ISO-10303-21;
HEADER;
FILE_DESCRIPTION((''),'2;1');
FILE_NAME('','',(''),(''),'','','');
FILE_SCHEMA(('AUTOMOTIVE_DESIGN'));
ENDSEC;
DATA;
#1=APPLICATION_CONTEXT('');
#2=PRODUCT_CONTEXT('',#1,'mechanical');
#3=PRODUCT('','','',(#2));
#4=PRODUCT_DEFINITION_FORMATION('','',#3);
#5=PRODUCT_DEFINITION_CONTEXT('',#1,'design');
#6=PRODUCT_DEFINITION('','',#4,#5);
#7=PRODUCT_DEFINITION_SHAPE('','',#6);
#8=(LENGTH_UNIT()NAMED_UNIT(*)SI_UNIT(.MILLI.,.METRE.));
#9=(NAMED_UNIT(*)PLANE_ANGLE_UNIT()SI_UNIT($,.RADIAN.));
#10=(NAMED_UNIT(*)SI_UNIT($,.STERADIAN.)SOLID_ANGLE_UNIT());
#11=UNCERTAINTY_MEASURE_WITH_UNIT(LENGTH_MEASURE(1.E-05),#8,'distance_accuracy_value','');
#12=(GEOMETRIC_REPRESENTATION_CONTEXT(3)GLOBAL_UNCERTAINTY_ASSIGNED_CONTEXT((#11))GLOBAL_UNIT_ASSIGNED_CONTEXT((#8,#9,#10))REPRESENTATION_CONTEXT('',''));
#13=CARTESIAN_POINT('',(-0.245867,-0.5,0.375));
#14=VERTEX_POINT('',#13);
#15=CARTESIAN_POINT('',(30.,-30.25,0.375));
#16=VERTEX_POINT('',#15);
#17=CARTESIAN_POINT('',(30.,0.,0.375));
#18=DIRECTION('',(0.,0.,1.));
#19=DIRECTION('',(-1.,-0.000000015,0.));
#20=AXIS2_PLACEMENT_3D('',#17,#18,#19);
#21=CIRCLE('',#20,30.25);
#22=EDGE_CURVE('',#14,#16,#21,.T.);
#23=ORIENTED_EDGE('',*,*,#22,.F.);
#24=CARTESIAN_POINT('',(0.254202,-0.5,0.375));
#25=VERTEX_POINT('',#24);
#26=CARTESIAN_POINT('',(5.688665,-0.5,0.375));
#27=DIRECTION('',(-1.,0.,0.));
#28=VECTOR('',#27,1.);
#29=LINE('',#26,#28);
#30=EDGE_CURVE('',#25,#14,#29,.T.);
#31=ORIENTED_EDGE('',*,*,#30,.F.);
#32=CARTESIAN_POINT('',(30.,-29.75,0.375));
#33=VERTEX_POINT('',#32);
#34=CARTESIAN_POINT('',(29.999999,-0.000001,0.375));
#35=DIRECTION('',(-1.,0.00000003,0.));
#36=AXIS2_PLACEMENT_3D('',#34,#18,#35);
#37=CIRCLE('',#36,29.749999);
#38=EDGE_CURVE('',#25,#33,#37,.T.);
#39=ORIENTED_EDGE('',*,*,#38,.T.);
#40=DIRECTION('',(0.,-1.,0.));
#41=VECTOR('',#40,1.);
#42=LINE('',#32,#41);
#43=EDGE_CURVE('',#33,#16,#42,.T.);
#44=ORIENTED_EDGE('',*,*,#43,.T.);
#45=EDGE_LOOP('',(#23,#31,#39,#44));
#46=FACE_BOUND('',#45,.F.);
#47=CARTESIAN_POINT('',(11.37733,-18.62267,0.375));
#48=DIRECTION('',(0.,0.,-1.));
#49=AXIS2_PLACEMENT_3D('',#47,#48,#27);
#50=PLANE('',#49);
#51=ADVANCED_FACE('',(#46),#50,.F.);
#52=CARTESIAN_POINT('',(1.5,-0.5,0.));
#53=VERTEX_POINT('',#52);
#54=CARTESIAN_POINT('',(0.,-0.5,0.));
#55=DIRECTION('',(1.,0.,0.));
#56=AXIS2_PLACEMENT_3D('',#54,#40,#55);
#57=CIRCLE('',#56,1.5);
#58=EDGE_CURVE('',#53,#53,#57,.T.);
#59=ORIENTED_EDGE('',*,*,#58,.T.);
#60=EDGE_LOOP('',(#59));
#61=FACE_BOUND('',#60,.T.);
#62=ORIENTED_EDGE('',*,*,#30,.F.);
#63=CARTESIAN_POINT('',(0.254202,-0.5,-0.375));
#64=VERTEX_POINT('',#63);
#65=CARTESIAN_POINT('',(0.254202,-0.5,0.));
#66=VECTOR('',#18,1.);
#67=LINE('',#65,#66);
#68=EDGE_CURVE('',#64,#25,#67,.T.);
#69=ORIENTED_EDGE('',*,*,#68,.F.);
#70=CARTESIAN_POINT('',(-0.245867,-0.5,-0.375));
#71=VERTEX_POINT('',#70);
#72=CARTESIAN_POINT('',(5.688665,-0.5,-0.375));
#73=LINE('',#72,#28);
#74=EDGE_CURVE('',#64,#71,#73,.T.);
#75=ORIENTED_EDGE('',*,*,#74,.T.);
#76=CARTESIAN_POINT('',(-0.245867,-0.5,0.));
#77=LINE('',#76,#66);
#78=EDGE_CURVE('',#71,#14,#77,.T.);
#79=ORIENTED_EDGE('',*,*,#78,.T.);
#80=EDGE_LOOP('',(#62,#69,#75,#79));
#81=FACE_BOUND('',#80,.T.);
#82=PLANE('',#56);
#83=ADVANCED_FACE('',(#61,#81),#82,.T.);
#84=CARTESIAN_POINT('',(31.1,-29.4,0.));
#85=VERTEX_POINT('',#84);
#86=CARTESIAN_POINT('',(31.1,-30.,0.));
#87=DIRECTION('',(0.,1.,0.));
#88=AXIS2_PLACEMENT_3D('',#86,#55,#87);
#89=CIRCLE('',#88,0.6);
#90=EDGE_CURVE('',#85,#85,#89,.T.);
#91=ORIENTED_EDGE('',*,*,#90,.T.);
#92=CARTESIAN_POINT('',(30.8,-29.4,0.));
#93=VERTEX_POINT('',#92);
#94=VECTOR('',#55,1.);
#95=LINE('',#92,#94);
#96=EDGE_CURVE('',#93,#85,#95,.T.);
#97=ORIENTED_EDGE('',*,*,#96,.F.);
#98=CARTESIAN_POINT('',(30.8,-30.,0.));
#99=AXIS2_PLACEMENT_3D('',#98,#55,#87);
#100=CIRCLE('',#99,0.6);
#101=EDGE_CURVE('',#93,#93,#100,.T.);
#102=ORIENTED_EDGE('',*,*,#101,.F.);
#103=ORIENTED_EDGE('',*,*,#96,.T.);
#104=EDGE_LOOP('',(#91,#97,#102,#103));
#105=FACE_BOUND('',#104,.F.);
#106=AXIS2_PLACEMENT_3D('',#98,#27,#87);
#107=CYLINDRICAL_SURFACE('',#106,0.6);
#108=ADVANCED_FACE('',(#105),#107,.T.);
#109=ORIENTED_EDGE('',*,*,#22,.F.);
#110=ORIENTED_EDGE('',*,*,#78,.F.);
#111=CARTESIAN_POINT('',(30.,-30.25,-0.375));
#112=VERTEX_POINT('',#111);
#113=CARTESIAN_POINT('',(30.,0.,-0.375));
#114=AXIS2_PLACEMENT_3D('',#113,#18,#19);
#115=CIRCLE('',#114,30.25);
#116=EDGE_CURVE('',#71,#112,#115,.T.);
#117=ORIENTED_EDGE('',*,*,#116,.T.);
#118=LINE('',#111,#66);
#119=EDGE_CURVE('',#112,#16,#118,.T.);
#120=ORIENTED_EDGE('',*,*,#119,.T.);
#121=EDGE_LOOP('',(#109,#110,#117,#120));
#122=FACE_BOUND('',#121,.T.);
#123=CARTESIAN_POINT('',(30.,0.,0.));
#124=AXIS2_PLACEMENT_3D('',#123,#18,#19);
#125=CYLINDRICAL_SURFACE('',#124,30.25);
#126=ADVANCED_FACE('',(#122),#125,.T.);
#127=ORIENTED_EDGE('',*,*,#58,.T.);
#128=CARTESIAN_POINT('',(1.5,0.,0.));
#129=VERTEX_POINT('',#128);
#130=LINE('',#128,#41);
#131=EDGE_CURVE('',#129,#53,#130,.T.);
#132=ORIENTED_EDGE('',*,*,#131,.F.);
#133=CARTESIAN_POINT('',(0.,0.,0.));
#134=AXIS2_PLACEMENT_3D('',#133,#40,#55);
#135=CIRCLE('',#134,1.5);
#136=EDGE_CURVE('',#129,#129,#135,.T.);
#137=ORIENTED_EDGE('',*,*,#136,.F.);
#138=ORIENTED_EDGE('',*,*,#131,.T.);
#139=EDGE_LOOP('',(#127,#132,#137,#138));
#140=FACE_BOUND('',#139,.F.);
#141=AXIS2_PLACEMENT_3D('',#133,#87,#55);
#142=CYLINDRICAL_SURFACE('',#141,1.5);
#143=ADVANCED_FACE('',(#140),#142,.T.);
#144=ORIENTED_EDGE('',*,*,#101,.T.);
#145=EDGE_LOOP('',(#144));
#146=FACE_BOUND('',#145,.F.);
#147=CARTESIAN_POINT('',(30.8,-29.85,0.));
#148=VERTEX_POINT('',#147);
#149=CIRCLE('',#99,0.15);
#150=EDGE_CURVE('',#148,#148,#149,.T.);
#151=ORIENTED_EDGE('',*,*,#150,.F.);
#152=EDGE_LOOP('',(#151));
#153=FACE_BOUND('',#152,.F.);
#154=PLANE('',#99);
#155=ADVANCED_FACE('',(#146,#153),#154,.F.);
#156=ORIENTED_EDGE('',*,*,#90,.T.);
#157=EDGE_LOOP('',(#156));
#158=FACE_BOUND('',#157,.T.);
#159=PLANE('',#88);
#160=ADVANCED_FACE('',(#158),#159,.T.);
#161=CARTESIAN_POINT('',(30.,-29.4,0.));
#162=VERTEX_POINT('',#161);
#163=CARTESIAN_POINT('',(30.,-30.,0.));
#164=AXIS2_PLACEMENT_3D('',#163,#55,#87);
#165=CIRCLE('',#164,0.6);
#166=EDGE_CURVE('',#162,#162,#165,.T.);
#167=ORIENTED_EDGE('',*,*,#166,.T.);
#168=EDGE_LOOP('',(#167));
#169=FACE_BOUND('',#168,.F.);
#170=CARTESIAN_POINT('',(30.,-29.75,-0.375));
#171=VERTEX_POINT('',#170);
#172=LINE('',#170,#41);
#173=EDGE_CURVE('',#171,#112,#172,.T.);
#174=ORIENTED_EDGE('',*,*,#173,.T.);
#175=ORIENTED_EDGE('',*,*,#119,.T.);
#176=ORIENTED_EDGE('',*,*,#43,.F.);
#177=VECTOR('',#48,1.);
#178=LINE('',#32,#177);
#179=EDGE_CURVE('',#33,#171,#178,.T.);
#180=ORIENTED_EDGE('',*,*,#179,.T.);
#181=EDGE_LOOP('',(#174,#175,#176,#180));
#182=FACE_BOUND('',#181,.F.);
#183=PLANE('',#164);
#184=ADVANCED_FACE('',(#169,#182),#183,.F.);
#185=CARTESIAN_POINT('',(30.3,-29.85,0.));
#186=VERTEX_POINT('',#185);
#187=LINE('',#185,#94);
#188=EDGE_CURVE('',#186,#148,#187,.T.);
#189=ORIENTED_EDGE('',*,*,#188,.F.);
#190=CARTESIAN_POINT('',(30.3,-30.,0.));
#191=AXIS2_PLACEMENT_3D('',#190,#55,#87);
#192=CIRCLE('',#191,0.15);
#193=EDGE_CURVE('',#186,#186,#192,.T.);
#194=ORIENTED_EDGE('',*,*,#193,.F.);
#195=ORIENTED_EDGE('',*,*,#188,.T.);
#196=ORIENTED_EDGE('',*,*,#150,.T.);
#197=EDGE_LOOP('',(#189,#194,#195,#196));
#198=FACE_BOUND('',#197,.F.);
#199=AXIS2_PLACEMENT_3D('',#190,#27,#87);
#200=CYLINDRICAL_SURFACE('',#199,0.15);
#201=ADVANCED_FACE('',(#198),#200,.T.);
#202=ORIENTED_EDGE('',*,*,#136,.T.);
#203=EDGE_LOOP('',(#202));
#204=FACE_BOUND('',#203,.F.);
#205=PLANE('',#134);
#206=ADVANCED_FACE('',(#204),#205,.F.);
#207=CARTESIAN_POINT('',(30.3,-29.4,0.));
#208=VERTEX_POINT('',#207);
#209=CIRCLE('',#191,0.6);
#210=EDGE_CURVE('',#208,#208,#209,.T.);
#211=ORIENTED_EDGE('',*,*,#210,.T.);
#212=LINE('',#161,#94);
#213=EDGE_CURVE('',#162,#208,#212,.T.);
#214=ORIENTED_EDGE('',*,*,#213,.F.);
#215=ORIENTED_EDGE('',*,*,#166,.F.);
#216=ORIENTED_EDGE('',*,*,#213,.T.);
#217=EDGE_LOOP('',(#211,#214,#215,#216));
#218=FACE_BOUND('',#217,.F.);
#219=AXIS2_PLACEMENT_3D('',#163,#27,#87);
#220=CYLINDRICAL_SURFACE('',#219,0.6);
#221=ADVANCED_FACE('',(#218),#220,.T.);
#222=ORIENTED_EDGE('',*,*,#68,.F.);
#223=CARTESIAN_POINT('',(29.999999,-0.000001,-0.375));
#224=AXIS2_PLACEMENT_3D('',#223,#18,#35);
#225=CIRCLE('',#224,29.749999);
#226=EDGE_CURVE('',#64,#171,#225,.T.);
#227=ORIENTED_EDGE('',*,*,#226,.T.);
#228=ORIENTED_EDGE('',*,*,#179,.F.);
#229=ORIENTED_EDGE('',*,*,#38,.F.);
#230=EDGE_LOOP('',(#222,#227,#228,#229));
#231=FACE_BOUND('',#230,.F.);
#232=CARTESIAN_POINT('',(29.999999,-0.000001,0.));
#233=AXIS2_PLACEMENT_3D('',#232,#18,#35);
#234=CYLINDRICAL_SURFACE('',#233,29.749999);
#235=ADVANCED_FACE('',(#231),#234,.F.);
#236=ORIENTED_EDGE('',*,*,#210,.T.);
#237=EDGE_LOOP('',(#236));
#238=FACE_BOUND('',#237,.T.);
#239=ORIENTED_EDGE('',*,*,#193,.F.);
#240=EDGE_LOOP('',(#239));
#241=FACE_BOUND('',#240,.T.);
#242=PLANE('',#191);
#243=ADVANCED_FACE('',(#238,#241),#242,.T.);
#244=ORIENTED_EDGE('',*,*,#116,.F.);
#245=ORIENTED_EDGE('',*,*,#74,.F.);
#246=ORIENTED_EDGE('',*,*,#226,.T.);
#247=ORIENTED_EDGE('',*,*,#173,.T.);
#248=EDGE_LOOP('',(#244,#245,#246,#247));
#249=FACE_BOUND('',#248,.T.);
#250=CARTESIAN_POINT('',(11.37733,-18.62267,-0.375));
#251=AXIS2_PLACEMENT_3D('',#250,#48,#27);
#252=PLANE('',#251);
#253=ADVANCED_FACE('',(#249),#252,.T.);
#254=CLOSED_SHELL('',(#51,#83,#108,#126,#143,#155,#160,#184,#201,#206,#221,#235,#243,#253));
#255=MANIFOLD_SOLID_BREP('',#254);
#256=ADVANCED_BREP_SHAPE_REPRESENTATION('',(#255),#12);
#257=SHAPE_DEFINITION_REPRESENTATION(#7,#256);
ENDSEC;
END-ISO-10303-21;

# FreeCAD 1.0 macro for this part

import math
import FreeCAD as App
import Part
import Sketcher
from FreeCAD import Vector

doc = App.newDocument("Part")
body = doc.addObject("PartDesign::Body", "Body")

# Sketch on XY plane
sketch1 = body.newObject("Sketcher::SketchObject", "Sketch")
sketch1.AttachmentSupport = (doc.getObject("XY_Plane"), [""])
sketch1.MapMode = "FlatFace"
sketch1.addGeometry(Part.LineSegment(Vector(0.25, 0, 0), Vector(-0.25, 0, 0)), False)
sketch1.addGeometry(Part.ArcOfCircle(Part.Circle(Vector(30, 0, 0), Vector(0, 0, 1), 30.25), math.radians(-179.999999), math.radians(-90.000001)), False)
sketch1.addGeometry(Part.LineSegment(Vector(30, -30.25, 0), Vector(30, -29.75, 0)), False)
sketch1.addGeometry(Part.ArcOfCircle(Part.Circle(Vector(29.999999, -0.000001, 0), Vector(0, 0, 1), 29.749999), math.radians(179.999998), math.radians(270.000002)), False)
sketch1.addConstraint(Sketcher.Constraint("Coincident", 0, 2, 1, 1))
sketch1.addConstraint(Sketcher.Constraint("Coincident", 1, 2, 2, 1))
sketch1.addConstraint(Sketcher.Constraint("Coincident", 2, 2, 3, 2))
sketch1.addConstraint(Sketcher.Constraint("Coincident", 3, 1, 0, 1))
sketch1.addConstraint(Sketcher.Constraint("Horizontal", 0))
sketch1.addConstraint(Sketcher.Constraint("Vertical", 2))
sketch1.addConstraint(Sketcher.Constraint("Coincident", 3, 3, 1, 3))
sketch1.addConstraint(Sketcher.Constraint("Symmetric", 0, 2, 3, 1, -1, 1))
sketch1.addConstraint(Sketcher.Constraint("PointOnObject", 1, 3, -1))
sketch1.addConstraint(Sketcher.Constraint("Vertical", 3, 3, 1, 2))
sketch1.addConstraint(Sketcher.Constraint("Radius", 1, 30.25))
sketch1.addConstraint(Sketcher.Constraint("Radius", 3, 29.749999))
pad1 = body.newObject("PartDesign::Pad", "Pad")
pad1.Profile = sketch1
pad1.Length = 0.75
pad1.Midplane = True

# Sketch on XZ plane
sketch2 = body.newObject("Sketcher::SketchObject", "Sketch001")
sketch2.AttachmentSupport = (doc.getObject("XZ_Plane"), [""])
sketch2.MapMode = "FlatFace"
sketch2.addGeometry(Part.Circle(Vector(0, 0, 0), Vector(0, 0, 1), 1.5), False)
sketch2.addConstraint(Sketcher.Constraint("Coincident", 0, 3, -1, 1))
sketch2.addConstraint(Sketcher.Constraint("Diameter", 0, 3.0))
pad2 = body.newObject("PartDesign::Pad", "Pad001")
pad2.Profile = sketch2
pad2.Length = 0.5

# Sketch on YZ plane
sketch3 = body.newObject("Sketcher::SketchObject", "Sketch002")
sketch3.AttachmentSupport = (doc.getObject("YZ_Plane"), [""])
sketch3.MapMode = "FlatFace"
sketch3.AttachmentOffset = App.Placement(Vector(0, 0, 30), App.Rotation())
sketch3.addGeometry(Part.Circle(Vector(-30, 0, 0), Vector(0, 0, 1), 0.6), False)
sketch3.addConstraint(Sketcher.Constraint("PointOnObject", 0, 3, -1))
sketch3.addConstraint(Sketcher.Constraint("Diameter", 0, 1.2))
sketch3.addConstraint(Sketcher.Constraint("DistanceX", 0, 3, -1, 1, 30.0))
pad3 = body.newObject("PartDesign::Pad", "Pad002")
pad3.Profile = sketch3
pad3.Length = 0.3

# Sketch on YZ plane
sketch4 = body.newObject("Sketcher::SketchObject", "Sketch003")
sketch4.AttachmentSupport = (doc.getObject("YZ_Plane"), [""])
sketch4.MapMode = "FlatFace"
sketch4.AttachmentOffset = App.Placement(Vector(0, 0, 30.3), App.Rotation())
sketch4.addGeometry(Part.Circle(Vector(-30, 0, 0), Vector(0, 0, 1), 0.15), False)
sketch4.addConstraint(Sketcher.Constraint("PointOnObject", 0, 3, -1))
sketch4.addConstraint(Sketcher.Constraint("Diameter", 0, 0.3))
sketch4.addConstraint(Sketcher.Constraint("DistanceX", 0, 3, -1, 1, 30.0))
pad4 = body.newObject("PartDesign::Pad", "Pad003")
pad4.Profile = sketch4
pad4.Length = 0.5

# Sketch on YZ plane
sketch5 = body.newObject("Sketcher::SketchObject", "Sketch004")
sketch5.AttachmentSupport = (doc.getObject("YZ_Plane"), [""])
sketch5.MapMode = "FlatFace"
sketch5.AttachmentOffset = App.Placement(Vector(0, 0, 30.8), App.Rotation())
sketch5.addGeometry(Part.Circle(Vector(-30, 0, 0), Vector(0, 0, 1), 0.6), False)
sketch5.addConstraint(Sketcher.Constraint("PointOnObject", 0, 3, -1))
sketch5.addConstraint(Sketcher.Constraint("Diameter", 0, 1.2))
sketch5.addConstraint(Sketcher.Constraint("DistanceX", 0, 3, -1, 1, 30.0))
pad5 = body.newObject("PartDesign::Pad", "Pad004")
pad5.Profile = sketch5
pad5.Length = 0.3

doc.recompute()
